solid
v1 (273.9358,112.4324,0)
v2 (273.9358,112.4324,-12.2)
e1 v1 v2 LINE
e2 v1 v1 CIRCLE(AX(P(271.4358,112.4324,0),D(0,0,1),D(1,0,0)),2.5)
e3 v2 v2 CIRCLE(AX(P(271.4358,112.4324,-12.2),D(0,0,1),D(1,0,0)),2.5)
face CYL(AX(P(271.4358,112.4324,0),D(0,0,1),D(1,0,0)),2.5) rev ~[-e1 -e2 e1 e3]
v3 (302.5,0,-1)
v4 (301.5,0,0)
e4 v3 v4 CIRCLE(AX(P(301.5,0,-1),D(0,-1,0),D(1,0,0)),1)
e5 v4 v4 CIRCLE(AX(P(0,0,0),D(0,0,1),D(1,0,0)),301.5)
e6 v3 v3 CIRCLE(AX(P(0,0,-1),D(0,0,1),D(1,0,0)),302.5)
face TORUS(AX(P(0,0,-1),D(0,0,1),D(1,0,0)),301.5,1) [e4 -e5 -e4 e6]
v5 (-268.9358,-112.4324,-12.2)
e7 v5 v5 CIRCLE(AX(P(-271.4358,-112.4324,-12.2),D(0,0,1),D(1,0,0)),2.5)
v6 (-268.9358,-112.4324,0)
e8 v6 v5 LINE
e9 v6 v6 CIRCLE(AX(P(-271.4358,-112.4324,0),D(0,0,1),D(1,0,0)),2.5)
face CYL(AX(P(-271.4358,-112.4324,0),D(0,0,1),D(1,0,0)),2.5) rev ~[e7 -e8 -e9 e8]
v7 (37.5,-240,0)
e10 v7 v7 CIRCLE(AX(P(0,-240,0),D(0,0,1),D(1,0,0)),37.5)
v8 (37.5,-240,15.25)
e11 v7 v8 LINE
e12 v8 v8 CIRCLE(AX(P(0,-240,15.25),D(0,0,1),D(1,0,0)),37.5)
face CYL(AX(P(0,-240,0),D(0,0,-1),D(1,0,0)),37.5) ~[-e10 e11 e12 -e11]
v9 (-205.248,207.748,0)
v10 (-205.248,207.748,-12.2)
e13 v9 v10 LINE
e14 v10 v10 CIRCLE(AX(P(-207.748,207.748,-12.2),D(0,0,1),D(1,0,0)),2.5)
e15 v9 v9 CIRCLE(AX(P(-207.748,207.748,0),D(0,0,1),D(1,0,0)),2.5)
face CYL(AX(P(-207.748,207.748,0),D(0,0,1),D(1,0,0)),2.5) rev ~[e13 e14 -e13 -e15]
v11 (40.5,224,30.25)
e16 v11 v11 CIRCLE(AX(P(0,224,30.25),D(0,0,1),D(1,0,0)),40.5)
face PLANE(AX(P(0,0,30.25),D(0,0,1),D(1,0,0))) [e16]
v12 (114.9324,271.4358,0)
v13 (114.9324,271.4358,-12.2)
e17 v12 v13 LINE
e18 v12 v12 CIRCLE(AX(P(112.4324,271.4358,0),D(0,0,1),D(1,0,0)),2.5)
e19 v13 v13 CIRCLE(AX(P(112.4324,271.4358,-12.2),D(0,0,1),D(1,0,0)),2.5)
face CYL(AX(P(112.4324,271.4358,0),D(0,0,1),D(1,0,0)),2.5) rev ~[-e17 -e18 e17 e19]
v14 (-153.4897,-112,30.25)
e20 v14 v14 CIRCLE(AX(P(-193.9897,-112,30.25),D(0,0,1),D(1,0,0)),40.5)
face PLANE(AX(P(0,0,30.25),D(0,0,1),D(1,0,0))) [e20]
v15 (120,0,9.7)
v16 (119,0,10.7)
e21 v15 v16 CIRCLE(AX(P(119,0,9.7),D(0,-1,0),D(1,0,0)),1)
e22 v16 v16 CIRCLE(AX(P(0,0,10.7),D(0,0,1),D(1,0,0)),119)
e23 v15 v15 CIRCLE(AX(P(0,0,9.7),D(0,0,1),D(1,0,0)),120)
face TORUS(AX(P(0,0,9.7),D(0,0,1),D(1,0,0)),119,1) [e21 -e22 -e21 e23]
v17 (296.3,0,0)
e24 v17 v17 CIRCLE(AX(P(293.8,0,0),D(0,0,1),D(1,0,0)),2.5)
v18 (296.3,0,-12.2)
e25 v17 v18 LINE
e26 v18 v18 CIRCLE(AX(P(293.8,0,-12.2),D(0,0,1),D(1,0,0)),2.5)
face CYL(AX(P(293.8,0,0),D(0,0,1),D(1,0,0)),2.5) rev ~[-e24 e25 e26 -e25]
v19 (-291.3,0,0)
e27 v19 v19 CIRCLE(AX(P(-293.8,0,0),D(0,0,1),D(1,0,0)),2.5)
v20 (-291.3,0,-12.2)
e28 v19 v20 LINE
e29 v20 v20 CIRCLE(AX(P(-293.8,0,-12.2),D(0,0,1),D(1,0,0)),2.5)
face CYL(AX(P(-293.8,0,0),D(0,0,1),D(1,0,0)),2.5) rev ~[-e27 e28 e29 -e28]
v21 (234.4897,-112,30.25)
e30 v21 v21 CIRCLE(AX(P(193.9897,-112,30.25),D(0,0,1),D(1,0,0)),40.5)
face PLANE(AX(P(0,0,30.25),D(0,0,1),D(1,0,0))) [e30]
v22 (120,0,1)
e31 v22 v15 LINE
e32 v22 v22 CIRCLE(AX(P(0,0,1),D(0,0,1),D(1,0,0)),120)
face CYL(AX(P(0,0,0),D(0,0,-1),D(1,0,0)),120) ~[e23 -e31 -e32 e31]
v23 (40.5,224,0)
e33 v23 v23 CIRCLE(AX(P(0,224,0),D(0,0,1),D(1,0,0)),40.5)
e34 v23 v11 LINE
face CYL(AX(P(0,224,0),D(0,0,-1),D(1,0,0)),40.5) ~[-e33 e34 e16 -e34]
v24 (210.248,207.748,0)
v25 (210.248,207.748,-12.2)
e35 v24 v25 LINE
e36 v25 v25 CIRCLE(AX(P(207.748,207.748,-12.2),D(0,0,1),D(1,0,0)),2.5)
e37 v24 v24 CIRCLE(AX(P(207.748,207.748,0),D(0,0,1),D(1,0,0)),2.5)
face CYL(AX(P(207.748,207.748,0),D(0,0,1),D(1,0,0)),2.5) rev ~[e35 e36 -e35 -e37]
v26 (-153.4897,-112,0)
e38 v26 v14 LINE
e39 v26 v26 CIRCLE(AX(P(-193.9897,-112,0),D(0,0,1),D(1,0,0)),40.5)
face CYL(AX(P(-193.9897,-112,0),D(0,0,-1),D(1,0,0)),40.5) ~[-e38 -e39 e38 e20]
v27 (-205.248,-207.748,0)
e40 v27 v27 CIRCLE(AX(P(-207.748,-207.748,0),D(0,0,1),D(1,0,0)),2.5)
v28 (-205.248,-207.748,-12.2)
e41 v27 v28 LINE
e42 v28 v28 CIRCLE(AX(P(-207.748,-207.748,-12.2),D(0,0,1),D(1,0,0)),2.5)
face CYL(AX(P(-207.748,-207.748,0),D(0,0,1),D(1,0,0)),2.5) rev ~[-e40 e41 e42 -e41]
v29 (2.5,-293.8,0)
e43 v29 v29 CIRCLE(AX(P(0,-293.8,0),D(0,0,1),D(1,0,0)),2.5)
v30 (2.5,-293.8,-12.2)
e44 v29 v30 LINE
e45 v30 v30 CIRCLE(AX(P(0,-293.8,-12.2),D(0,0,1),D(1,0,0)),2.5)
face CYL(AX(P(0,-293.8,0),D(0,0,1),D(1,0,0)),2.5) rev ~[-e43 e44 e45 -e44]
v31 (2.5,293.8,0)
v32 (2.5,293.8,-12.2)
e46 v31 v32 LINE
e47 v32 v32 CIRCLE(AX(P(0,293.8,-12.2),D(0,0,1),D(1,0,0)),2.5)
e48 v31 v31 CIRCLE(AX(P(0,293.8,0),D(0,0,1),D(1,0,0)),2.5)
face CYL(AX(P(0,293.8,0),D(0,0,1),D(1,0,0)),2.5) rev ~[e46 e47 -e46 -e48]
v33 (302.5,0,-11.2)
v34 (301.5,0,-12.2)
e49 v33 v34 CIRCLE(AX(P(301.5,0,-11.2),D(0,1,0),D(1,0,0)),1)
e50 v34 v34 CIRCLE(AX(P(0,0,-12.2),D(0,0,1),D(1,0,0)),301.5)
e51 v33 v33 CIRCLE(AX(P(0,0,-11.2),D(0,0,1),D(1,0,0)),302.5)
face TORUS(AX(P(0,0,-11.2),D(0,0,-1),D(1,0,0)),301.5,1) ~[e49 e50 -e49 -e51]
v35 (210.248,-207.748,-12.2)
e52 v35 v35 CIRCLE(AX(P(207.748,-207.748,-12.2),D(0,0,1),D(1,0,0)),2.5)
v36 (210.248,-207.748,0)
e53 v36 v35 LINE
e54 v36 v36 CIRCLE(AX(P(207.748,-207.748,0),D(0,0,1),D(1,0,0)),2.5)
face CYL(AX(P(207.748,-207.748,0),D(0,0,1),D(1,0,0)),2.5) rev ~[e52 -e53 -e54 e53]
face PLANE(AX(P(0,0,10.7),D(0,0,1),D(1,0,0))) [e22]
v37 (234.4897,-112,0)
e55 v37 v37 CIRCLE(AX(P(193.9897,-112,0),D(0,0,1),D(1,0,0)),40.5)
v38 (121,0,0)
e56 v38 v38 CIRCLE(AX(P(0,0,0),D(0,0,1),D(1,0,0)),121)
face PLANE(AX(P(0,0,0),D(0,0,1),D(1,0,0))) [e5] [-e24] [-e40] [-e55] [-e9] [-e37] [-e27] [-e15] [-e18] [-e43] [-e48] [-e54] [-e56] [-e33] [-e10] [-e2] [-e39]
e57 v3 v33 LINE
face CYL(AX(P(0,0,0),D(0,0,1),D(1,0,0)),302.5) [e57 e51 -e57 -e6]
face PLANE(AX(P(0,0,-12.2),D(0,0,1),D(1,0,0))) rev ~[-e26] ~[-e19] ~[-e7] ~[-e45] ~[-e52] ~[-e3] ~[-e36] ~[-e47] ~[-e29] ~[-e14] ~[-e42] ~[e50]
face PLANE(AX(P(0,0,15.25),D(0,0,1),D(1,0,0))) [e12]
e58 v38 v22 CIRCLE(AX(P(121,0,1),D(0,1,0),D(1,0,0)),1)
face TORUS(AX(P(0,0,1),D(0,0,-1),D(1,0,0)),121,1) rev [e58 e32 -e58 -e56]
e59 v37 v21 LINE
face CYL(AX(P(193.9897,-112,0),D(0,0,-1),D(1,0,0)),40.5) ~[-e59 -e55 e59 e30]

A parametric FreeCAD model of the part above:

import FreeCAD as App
import Part
import Sketcher

V = App.Vector


def edges_at(feature, points):
    """Names of the edges that pass closest to the given points."""
    edges = feature.Shape.Edges
    near = lambda p: min(range(len(edges)), key=lambda i: edges[i].distToShape(Part.Vertex(*p))[0])
    return sorted({f"Edge{near(p) + 1}" for p in points})

doc = App.newDocument("Part")
params = doc.addObject("Spreadsheet::Sheet", "Params")
for row, (alias, value) in enumerate([
    ("sketch1_diameter", "605 mm"),
    ("pad1_length", "12.2 mm"),
    ("sketch2_diameter", "81 mm"),
    ("pad2_length", "30.25 mm"),
    ("sketch3_diameter", "240 mm"),
    ("pad3_length", "10.7 mm"),
    ("sketch4_diameter", "75 mm"),
    ("pad4_length", "15.25 mm"),
    ("sketch5_diameter", "5 mm"),
    ("pocket1_length", "12.2 mm"),
    ("fillet_radius", "1 mm"),
], start=1):
    params.set(f"A{row}", alias)
    params.set(f"B{row}", "=" + value)
    params.setAlias(f"B{row}", alias)

body = doc.addObject("PartDesign::Body", "Body")

# Sketch on XY plane
sketch1 = body.newObject("Sketcher::SketchObject", "Sketch")
sketch1.AttachmentSupport = (doc.getObject("XY_Plane"), [""])
sketch1.MapMode = "FlatFace"
sketch1.addGeometry(Part.Circle(V(0, 0, 0), V(0, 0, 1), 302.5), False)
sketch1.addConstraint([
    Sketcher.Constraint("Coincident", 0, 3, -1, 1),
    Sketcher.Constraint("Diameter", 0, 605.0),
])
sketch1.setExpression("Constraints[1]", "Params.sketch1_diameter")
pad1 = body.newObject("PartDesign::Pad", "Pad")
pad1.Profile = sketch1
pad1.setExpression("Length", "Params.pad1_length")
pad1.Reversed = True

# Sketch on XY plane
sketch2 = body.newObject("Sketcher::SketchObject", "Sketch001")
sketch2.AttachmentSupport = (doc.getObject("XY_Plane"), [""])
sketch2.MapMode = "FlatFace"
sketch2.addGeometry([
    Part.Circle(V(0, 224, 0), V(0, 0, 1), 40.5),
    Part.Circle(V(-193.9897, -112, 0), V(0, 0, 1), 40.5),
    Part.Circle(V(193.9897, -112, 0), V(0, 0, 1), 40.5),
], False)
sketch2.addConstraint([
    Sketcher.Constraint("Equal", 0, 1),
    Sketcher.Constraint("Equal", 1, 2),
    Sketcher.Constraint("Symmetric", 1, 3, 2, 3, -2),
    Sketcher.Constraint("PointOnObject", 0, 3, -2),
    Sketcher.Constraint("Diameter", 0, 81.0),
    Sketcher.Constraint("DistanceY", -1, 1, 0, 3, 224.0),
    Sketcher.Constraint("DistanceY", 1, 3, -1, 1, 112.0),
    Sketcher.Constraint("DistanceX", 1, 3, -1, 1, 193.9897),
])
sketch2.setExpression("Constraints[4]", "Params.sketch2_diameter")
pad2 = body.newObject("PartDesign::Pad", "Pad001")
pad2.Profile = sketch2
pad2.setExpression("Length", "Params.pad2_length")

# Sketch on XY plane
sketch3 = body.newObject("Sketcher::SketchObject", "Sketch002")
sketch3.AttachmentSupport = (doc.getObject("XY_Plane"), [""])
sketch3.MapMode = "FlatFace"
sketch3.addGeometry(Part.Circle(V(0, 0, 0), V(0, 0, 1), 120), False)
sketch3.addConstraint([
    Sketcher.Constraint("Coincident", 0, 3, -1, 1),
    Sketcher.Constraint("Diameter", 0, 240.0),
])
sketch3.setExpression("Constraints[1]", "Params.sketch3_diameter")
pad3 = body.newObject("PartDesign::Pad", "Pad002")
pad3.Profile = sketch3
pad3.setExpression("Length", "Params.pad3_length")

# Sketch on XY plane
sketch4 = body.newObject("Sketcher::SketchObject", "Sketch003")
sketch4.AttachmentSupport = (doc.getObject("XY_Plane"), [""])
sketch4.MapMode = "FlatFace"
sketch4.addGeometry(Part.Circle(V(0, -240, 0), V(0, 0, 1), 37.5), False)
sketch4.addConstraint([
    Sketcher.Constraint("PointOnObject", 0, 3, -2),
    Sketcher.Constraint("Diameter", 0, 75.0),
    Sketcher.Constraint("DistanceY", 0, 3, -1, 1, 240.0),
])
sketch4.setExpression("Constraints[1]", "Params.sketch4_diameter")
pad4 = body.newObject("PartDesign::Pad", "Pad003")
pad4.Profile = sketch4
pad4.setExpression("Length", "Params.pad4_length")

# Sketch on XY plane
sketch5 = body.newObject("Sketcher::SketchObject", "Sketch004")
sketch5.AttachmentSupport = (doc.getObject("XY_Plane"), [""])
sketch5.MapMode = "FlatFace"
sketch5.addGeometry([
    Part.Circle(V(0, 293.8, 0), V(0, 0, 1), 2.5),  # 0
    Part.Circle(V(271.4358, 112.4324, 0), V(0, 0, 1), 2.5),  # 1
    Part.Circle(V(112.4324, 271.4358, 0), V(0, 0, 1), 2.5),  # 2
    Part.Circle(V(-271.4358, -112.4324, 0), V(0, 0, 1), 2.5),  # 3
    Part.Circle(V(-207.748, 207.748, 0), V(0, 0, 1), 2.5),  # 4
    Part.Circle(V(-293.8, 0, 0), V(0, 0, 1), 2.5),  # 5
    Part.Circle(V(-207.748, -207.748, 0), V(0, 0, 1), 2.5),  # 6
    Part.Circle(V(0, -293.8, 0), V(0, 0, 1), 2.5),  # 7
    Part.Circle(V(207.748, -207.748, 0), V(0, 0, 1), 2.5),  # 8
    Part.Circle(V(293.8, 0, 0), V(0, 0, 1), 2.5),  # 9
    Part.Circle(V(207.748, 207.748, 0), V(0, 0, 1), 2.5),  # 10
], False)
sketch5.addConstraint([
    Sketcher.Constraint("Equal", 0, 1),
    Sketcher.Constraint("Equal", 1, 2),
    Sketcher.Constraint("Equal", 2, 3),
    Sketcher.Constraint("Equal", 3, 4),
    Sketcher.Constraint("Equal", 4, 5),
    Sketcher.Constraint("Equal", 5, 6),
    Sketcher.Constraint("Equal", 6, 7),
    Sketcher.Constraint("Equal", 7, 8),
    Sketcher.Constraint("Equal", 8, 9),
    Sketcher.Constraint("Equal", 9, 10),
    Sketcher.Constraint("Symmetric", 1, 3, 3, 3, -1, 1),
    Sketcher.Constraint("Symmetric", 0, 3, 7, 3, -1, 1),
    Sketcher.Constraint("Symmetric", 4, 3, 8, 3, -1, 1),
    Sketcher.Constraint("Symmetric", 5, 3, 9, 3, -1, 1),
    Sketcher.Constraint("Symmetric", 6, 3, 10, 3, -1, 1),
    Sketcher.Constraint("Symmetric", 6, 3, 8, 3, -2),
    Sketcher.Constraint("PointOnObject", 0, 3, -2),
    Sketcher.Constraint("PointOnObject", 5, 3, -1),
    Sketcher.Constraint("Diameter", 0, 5.0),
    Sketcher.Constraint("DistanceY", -1, 1, 0, 3, 293.8),
    Sketcher.Constraint("DistanceX", 5, 3, -1, 1, 293.8),
    Sketcher.Constraint("DistanceX", 4, 3, -1, 1, 207.748),
    Sketcher.Constraint("DistanceY", -1, 1, 4, 3, 207.748),
    Sketcher.Constraint("DistanceX", -1, 1, 1, 3, 271.4358),
    Sketcher.Constraint("DistanceY", -1, 1, 1, 3, 112.4324),
    Sketcher.Constraint("DistanceX", -1, 1, 2, 3, 112.4324),
    Sketcher.Constraint("DistanceY", -1, 1, 2, 3, 271.4358),
])
sketch5.setExpression("Constraints[18]", "Params.sketch5_diameter")
pocket1 = body.newObject("PartDesign::Pocket", "Pocket")
pocket1.Profile = sketch5
pocket1.setExpression("Length", "Params.pocket1_length")
doc.recompute()

fillet = body.newObject("PartDesign::Fillet", "Fillet")
fillet.Base = (pocket1, edges_at(pocket1, [
    (-120, 0, 10.7),
    (-120, 0, 0),
    (-302.5, 0, 0),
    (-302.5, 0, -12.2),
]))
fillet.setExpression("Radius", "Params.fillet_radius")

doc.recompute()
